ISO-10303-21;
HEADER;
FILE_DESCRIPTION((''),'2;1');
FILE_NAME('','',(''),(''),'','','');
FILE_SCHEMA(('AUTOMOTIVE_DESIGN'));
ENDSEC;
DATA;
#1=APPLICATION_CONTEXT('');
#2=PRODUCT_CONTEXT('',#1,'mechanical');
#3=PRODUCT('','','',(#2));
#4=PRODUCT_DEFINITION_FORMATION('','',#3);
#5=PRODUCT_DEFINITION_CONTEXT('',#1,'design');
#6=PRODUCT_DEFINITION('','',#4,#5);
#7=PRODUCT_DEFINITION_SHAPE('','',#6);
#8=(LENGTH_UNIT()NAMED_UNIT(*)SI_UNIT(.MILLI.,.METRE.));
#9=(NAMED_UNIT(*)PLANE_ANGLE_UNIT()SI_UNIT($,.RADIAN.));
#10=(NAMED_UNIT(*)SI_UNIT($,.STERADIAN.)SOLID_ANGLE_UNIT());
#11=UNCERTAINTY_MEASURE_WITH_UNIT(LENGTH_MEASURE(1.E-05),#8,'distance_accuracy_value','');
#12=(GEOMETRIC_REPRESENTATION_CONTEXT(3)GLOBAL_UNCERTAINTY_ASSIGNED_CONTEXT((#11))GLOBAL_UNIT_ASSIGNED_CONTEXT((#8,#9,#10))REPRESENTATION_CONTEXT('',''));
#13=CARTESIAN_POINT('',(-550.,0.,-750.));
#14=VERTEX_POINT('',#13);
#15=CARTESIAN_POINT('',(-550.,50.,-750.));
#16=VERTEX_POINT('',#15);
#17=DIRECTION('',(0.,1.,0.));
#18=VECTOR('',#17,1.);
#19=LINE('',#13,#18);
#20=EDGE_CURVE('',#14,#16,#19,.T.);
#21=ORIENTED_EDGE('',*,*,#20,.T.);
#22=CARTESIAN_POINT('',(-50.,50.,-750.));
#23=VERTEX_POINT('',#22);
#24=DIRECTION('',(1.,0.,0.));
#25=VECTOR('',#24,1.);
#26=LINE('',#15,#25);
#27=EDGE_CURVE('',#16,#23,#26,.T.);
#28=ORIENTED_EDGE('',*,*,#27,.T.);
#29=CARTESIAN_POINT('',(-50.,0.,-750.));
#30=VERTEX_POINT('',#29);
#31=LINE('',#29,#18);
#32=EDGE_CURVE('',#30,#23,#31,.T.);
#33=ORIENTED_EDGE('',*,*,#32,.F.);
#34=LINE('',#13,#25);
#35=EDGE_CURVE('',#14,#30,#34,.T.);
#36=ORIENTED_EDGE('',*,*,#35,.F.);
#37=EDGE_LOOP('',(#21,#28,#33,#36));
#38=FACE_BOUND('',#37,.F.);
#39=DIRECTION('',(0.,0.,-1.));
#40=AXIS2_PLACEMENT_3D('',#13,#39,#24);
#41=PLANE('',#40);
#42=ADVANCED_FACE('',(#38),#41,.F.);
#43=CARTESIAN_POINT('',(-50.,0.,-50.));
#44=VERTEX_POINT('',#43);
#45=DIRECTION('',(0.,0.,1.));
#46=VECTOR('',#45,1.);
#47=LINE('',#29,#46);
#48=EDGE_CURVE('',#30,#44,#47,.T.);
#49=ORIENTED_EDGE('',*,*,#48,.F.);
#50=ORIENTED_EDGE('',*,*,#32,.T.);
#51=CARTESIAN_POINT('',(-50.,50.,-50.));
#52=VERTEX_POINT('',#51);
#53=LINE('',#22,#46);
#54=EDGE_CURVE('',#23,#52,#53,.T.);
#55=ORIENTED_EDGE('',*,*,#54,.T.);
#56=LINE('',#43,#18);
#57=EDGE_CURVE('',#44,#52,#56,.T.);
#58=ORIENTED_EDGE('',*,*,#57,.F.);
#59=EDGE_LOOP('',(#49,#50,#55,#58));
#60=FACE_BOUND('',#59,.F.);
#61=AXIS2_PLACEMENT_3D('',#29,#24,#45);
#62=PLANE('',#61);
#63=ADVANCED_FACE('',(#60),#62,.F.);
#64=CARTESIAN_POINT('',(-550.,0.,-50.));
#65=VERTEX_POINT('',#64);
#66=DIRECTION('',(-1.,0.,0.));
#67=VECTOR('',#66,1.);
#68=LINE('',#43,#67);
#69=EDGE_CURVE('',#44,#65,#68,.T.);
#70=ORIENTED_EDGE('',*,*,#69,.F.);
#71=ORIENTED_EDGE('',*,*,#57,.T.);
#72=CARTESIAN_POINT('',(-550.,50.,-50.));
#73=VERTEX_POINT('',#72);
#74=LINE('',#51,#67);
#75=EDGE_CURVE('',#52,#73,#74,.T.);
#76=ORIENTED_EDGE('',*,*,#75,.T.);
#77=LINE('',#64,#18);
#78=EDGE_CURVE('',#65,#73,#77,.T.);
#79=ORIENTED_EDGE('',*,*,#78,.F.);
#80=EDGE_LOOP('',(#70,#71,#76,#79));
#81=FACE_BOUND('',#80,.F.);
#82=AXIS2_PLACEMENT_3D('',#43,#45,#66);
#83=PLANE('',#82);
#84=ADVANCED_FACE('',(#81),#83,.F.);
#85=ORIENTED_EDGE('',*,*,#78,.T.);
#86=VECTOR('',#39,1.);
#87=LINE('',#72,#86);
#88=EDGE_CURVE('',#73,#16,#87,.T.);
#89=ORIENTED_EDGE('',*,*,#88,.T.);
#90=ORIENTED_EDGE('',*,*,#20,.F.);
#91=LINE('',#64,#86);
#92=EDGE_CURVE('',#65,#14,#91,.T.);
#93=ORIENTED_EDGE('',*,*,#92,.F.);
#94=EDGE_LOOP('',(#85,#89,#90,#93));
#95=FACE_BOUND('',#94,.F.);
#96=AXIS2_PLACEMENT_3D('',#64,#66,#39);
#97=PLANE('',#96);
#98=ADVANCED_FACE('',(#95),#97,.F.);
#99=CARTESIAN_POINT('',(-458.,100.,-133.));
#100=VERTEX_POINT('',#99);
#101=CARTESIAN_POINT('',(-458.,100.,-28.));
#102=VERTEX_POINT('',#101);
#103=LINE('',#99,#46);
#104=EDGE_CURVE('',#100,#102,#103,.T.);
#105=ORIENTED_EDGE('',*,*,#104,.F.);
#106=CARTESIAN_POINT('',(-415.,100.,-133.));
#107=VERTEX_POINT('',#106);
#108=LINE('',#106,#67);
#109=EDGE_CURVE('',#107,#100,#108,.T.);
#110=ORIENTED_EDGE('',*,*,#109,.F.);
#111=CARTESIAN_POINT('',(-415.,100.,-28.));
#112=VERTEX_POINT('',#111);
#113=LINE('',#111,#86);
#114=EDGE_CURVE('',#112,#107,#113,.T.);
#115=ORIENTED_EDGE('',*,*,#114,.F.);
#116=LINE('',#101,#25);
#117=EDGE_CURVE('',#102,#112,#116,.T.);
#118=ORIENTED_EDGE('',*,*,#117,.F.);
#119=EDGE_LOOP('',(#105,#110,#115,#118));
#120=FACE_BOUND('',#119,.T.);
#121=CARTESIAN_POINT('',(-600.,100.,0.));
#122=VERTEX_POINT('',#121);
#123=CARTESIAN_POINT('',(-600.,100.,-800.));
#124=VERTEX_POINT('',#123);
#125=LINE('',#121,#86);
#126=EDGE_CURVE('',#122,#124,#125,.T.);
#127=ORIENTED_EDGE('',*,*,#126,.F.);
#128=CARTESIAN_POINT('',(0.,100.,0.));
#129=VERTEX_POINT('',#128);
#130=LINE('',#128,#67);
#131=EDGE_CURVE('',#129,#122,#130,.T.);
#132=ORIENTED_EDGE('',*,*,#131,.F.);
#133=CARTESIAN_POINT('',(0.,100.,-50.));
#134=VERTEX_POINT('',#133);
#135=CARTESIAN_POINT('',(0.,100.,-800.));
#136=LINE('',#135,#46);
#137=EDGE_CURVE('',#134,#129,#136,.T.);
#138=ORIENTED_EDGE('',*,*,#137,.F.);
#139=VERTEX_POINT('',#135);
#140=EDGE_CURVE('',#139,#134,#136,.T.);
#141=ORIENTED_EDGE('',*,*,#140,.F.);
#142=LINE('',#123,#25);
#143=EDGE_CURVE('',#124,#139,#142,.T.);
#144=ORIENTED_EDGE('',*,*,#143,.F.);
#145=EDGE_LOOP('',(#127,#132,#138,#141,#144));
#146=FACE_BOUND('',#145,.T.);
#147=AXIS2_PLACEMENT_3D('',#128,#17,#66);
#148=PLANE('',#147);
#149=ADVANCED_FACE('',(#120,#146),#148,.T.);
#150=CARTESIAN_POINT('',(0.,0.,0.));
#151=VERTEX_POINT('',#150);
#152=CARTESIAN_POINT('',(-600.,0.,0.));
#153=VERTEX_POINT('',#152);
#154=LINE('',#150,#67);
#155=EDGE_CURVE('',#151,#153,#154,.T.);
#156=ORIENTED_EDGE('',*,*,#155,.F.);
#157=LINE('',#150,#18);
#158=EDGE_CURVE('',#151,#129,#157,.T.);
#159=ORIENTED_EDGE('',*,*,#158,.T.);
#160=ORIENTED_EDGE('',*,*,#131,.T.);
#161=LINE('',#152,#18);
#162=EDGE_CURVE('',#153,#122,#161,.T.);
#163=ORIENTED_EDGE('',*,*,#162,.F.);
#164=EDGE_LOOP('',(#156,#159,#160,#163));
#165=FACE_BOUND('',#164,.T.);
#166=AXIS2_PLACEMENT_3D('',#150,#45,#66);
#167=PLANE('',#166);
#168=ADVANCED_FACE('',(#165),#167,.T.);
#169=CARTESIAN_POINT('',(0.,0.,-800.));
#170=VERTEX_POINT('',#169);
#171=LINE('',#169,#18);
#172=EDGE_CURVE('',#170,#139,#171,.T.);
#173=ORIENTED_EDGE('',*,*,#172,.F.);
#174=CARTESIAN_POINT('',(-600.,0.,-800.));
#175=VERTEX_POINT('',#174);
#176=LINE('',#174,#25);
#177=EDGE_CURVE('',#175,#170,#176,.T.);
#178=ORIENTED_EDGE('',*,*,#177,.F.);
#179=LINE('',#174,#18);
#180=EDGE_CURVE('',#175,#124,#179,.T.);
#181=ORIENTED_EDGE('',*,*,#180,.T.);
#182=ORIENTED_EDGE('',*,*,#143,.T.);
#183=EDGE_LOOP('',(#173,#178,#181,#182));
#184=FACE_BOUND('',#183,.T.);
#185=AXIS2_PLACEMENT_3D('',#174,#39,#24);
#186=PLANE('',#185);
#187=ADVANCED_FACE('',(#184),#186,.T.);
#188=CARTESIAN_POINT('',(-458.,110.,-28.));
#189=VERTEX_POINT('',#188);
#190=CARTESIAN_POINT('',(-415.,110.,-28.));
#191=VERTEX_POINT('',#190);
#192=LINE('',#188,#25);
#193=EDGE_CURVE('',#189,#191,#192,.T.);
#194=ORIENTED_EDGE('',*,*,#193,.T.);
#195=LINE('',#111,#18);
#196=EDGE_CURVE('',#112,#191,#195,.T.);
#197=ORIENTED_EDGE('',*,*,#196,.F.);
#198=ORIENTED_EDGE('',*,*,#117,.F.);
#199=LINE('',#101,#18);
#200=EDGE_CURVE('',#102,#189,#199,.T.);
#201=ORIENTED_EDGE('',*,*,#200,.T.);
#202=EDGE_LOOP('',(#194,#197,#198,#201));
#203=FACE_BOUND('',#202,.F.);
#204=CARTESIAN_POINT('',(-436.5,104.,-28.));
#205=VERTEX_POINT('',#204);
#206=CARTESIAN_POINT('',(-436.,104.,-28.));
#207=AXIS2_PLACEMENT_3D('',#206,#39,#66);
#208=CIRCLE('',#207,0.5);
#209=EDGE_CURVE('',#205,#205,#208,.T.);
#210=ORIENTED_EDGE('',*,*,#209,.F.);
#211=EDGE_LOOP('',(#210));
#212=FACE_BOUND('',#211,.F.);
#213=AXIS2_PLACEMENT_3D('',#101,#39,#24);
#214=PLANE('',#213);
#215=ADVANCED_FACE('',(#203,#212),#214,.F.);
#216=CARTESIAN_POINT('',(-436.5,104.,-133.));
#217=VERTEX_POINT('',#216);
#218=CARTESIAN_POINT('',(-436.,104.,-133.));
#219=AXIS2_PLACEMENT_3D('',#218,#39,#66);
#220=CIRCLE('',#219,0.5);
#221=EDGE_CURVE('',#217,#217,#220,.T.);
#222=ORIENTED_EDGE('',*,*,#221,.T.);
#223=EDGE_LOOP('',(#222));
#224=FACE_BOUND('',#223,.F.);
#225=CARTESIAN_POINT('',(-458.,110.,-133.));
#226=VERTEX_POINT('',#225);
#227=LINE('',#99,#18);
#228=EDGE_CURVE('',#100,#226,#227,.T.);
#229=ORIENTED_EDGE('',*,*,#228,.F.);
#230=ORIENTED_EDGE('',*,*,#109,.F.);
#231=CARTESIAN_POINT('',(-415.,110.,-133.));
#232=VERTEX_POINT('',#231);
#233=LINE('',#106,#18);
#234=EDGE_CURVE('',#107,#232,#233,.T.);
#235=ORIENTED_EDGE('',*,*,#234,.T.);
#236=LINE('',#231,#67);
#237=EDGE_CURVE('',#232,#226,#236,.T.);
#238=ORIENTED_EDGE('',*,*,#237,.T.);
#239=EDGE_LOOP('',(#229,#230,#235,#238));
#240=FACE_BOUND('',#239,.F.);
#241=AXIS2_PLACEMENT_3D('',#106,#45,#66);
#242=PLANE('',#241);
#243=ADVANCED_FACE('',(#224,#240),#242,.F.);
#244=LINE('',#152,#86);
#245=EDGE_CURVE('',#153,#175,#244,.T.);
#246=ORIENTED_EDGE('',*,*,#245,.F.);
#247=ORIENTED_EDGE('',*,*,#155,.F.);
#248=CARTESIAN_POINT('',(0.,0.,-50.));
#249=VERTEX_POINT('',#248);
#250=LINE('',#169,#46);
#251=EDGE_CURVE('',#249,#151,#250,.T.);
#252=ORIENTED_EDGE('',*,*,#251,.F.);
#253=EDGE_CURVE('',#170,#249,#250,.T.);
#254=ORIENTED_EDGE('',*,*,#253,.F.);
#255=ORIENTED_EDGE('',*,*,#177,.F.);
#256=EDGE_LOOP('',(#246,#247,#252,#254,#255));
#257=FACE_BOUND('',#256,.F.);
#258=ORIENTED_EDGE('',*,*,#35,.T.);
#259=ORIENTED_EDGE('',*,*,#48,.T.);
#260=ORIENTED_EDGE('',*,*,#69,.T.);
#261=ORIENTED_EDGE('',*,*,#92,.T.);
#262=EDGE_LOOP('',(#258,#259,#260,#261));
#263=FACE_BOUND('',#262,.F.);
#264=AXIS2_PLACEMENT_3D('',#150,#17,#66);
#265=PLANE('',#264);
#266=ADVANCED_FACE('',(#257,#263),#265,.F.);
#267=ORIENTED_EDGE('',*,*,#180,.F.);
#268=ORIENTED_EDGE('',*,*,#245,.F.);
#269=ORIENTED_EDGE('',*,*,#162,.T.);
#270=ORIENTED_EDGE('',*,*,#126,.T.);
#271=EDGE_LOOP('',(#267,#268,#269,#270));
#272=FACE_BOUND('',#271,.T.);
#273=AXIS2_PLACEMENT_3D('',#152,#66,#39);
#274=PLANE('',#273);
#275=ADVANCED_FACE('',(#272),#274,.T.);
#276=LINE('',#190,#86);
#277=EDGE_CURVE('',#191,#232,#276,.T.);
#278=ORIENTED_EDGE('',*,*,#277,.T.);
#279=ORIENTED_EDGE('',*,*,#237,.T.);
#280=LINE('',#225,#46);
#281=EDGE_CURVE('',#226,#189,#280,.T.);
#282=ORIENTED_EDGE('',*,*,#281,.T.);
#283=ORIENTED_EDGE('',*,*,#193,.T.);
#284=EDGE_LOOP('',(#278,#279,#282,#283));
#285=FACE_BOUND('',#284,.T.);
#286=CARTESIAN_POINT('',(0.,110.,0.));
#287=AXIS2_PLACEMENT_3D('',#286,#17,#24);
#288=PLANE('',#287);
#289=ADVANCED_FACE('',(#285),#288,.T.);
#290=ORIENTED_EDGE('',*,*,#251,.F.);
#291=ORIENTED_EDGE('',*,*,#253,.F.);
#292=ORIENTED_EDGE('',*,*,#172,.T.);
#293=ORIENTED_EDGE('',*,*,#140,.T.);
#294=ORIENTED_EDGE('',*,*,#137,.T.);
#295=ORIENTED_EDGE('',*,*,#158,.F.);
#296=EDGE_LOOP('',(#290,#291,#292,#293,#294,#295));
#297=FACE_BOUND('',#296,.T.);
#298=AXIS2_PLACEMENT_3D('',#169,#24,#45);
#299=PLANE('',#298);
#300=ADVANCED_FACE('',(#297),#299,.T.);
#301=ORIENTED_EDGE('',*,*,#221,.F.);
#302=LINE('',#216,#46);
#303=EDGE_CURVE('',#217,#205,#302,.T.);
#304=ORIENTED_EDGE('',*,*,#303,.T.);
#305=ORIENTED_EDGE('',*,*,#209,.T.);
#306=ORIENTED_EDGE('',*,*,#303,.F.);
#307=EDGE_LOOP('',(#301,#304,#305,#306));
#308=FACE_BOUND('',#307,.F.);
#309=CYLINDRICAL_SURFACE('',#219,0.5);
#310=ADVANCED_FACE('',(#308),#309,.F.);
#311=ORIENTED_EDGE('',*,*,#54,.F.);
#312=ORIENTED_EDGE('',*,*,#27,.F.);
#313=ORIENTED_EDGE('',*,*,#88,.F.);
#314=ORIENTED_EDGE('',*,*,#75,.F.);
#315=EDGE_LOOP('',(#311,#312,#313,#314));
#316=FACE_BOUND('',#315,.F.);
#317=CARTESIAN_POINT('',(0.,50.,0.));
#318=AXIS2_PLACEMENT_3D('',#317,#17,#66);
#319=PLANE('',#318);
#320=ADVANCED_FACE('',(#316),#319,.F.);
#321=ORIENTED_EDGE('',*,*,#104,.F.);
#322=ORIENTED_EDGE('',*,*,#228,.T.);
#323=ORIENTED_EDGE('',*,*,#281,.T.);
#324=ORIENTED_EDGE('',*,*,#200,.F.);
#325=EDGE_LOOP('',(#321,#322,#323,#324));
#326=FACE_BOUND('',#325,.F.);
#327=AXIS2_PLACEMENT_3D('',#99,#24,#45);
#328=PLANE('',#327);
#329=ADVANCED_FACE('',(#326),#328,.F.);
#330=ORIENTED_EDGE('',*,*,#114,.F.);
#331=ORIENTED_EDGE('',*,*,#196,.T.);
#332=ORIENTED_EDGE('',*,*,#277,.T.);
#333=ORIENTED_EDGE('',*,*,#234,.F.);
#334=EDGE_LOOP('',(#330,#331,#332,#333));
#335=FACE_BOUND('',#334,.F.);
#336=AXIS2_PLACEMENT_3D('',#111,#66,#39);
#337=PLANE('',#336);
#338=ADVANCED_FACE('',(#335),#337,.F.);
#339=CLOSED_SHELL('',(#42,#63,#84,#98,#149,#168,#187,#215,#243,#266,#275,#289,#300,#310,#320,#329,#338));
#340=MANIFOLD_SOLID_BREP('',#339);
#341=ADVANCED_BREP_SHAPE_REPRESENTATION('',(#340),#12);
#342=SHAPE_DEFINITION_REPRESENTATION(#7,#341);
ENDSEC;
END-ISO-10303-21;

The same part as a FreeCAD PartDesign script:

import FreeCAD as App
import Part
import Sketcher
from FreeCAD import Vector
Q = App.Units.Quantity


def add_polygon(sketch, points):
    """Adds a closed chain of lines whose ends are joined by coincident constraints."""
    first, n = sketch.GeometryCount, len(points)
    for a, b in zip(points, points[1:] + points[:1]):
        sketch.addGeometry(Part.LineSegment(App.Vector(*a, 0), App.Vector(*b, 0)), False)
    for i in range(n):
        sketch.addConstraint(Sketcher.Constraint("Coincident", first + i, 2, first + (i + 1) % n, 1))

doc = App.newDocument("Part")
body = doc.addObject("PartDesign::Body", "Body")

# Sketch on XZ plane
sketch1 = body.newObject("Sketcher::SketchObject", "Sketch")
sketch1.AttachmentSupport = (doc.getObject("XZ_Plane"), [""])
sketch1.MapMode = "FlatFace"
add_polygon(sketch1, [(-600, 0), (0, 0), (0, -50), (0, -800), (-600, -800)])  # lines 0-4
sketch1.addConstraint(Sketcher.Constraint("Horizontal", 0))
sketch1.addConstraint(Sketcher.Constraint("Vertical", 1))
sketch1.addConstraint(Sketcher.Constraint("Vertical", 2))
sketch1.addConstraint(Sketcher.Constraint("Horizontal", 3))
sketch1.addConstraint(Sketcher.Constraint("Vertical", 4))
sketch1.addConstraint(Sketcher.Constraint("Coincident", 0, 2, -1, 1))
sketch1.addConstraint(Sketcher.Constraint("DistanceX", 0, 1, 0, 2, Q("600 mm")))
sketch1.addConstraint(Sketcher.Constraint("DistanceY", 1, 2, 1, 1, Q("50 mm")))
sketch1.addConstraint(Sketcher.Constraint("DistanceY", 4, 1, 4, 2, Q("800 mm")))
pad1 = body.newObject("PartDesign::Pad", "Pad")
pad1.Profile = sketch1
pad1.Length = 100
pad1.Reversed = True

# Sketch on XZ plane
sketch2 = body.newObject("Sketcher::SketchObject", "Sketch001")
sketch2.AttachmentSupport = (doc.getObject("XZ_Plane"), [""])
sketch2.MapMode = "FlatFace"
add_polygon(sketch2, [(-550, -50), (-50, -50), (-50, -750), (-550, -750)])  # lines 0-3
sketch2.addConstraint(Sketcher.Constraint("Horizontal", 0))
sketch2.addConstraint(Sketcher.Constraint("Vertical", 1))
sketch2.addConstraint(Sketcher.Constraint("Horizontal", 2))
sketch2.addConstraint(Sketcher.Constraint("Vertical", 3))
sketch2.addConstraint(Sketcher.Constraint("DistanceX", 0, 2, -1, 1, Q("50 mm")))
sketch2.addConstraint(Sketcher.Constraint("DistanceY", 0, 2, -1, 1, Q("50 mm")))
sketch2.addConstraint(Sketcher.Constraint("DistanceX", 0, 1, 0, 2, Q("500 mm")))
sketch2.addConstraint(Sketcher.Constraint("DistanceY", 1, 2, 1, 1, Q("700 mm")))
pocket1 = body.newObject("PartDesign::Pocket", "Pocket")
pocket1.Profile = sketch2
pocket1.Length = 50

# Sketch on XZ plane
sketch3 = body.newObject("Sketcher::SketchObject", "Sketch002")
sketch3.AttachmentSupport = (doc.getObject("XZ_Plane"), [""])
sketch3.MapMode = "FlatFace"
sketch3.AttachmentOffset = App.Placement(Vector(0, 0, -100), App.Rotation())
add_polygon(sketch3, [(-458, -133), (-458, -28), (-415, -28), (-415, -133)])  # lines 0-3
sketch3.addConstraint(Sketcher.Constraint("Vertical", 0))
sketch3.addConstraint(Sketcher.Constraint("Horizontal", 1))
sketch3.addConstraint(Sketcher.Constraint("Vertical", 2))
sketch3.addConstraint(Sketcher.Constraint("Horizontal", 3))
sketch3.addConstraint(Sketcher.Constraint("DistanceX", 1, 1, 1, 2, Q("43 mm")))
sketch3.addConstraint(Sketcher.Constraint("DistanceY", 0, 1, 0, 2, Q("105 mm")))
sketch3.addConstraint(Sketcher.Constraint("DistanceX", 0, 2, -1, 1, Q("458 mm")))
sketch3.addConstraint(Sketcher.Constraint("DistanceY", 0, 2, -1, 1, Q("28 mm")))
pad2 = body.newObject("PartDesign::Pad", "Pad001")
pad2.Profile = sketch3
pad2.Length = 10
pad2.Reversed = True

# Sketch on XY plane
sketch4 = body.newObject("Sketcher::SketchObject", "Sketch003")
sketch4.AttachmentSupport = (doc.getObject("XY_Plane"), [""])
sketch4.MapMode = "FlatFace"
sketch4.AttachmentOffset = App.Placement(Vector(0, 0, -133), App.Rotation())
sketch4.addGeometry(Part.Circle(Vector(-436, 104, 0), Vector(0, 0, 1), 0.5), False)
sketch4.addConstraint(Sketcher.Constraint("Diameter", 0, Q("1 mm")))
sketch4.addConstraint(Sketcher.Constraint("DistanceX", 0, 3, -1, 1, Q("436 mm")))
sketch4.addConstraint(Sketcher.Constraint("DistanceY", -1, 1, 0, 3, Q("104 mm")))
pocket2 = body.newObject("PartDesign::Pocket", "Pocket001")
pocket2.Profile = sketch4
pocket2.Type = "ThroughAll"
pocket2.Reversed = True

doc.recompute()
